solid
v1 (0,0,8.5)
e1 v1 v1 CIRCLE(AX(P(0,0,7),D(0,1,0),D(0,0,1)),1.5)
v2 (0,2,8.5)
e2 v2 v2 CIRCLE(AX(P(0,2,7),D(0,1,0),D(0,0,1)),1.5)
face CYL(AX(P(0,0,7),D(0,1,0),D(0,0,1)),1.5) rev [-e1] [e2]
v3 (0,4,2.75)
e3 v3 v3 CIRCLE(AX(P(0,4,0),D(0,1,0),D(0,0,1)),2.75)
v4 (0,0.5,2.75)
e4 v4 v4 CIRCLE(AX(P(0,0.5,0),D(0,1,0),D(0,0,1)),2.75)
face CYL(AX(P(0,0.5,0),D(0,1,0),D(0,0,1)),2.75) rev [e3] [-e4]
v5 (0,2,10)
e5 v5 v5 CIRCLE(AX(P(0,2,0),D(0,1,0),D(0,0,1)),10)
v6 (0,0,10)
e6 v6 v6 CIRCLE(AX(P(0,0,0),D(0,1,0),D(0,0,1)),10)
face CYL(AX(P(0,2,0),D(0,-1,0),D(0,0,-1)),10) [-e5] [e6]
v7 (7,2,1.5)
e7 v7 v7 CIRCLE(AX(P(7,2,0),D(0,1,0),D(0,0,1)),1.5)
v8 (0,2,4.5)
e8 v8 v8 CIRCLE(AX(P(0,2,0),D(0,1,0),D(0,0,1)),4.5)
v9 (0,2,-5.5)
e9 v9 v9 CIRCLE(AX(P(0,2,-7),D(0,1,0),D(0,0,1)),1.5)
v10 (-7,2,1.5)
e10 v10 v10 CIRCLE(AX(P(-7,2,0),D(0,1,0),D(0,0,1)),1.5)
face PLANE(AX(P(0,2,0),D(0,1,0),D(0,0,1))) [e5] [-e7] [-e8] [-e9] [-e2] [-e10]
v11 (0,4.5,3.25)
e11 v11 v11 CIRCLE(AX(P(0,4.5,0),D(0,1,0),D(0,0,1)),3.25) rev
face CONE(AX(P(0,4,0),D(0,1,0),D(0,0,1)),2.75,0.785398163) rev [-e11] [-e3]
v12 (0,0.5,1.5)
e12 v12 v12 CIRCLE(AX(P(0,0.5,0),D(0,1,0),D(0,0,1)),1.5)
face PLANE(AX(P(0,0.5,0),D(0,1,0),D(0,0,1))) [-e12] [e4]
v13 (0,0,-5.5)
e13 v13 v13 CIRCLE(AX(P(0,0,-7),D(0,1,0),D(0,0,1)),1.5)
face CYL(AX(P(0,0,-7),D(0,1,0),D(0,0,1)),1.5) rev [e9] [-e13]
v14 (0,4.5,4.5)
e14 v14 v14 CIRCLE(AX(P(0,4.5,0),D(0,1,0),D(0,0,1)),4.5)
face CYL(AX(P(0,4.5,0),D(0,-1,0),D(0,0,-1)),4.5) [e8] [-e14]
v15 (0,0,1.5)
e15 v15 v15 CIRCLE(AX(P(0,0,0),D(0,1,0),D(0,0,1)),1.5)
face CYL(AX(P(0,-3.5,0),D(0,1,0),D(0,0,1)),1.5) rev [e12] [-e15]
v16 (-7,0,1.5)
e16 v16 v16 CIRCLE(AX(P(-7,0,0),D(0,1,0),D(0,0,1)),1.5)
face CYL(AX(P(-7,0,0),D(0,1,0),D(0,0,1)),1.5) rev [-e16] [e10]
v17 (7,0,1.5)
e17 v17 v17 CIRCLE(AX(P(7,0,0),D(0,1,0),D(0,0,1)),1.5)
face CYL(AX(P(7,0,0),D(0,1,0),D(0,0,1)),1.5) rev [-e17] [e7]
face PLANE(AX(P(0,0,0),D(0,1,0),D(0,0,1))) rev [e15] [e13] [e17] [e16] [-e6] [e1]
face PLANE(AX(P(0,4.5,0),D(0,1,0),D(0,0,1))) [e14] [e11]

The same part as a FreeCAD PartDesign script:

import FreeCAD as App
import Part
import Sketcher
from FreeCAD import Vector


def edges_at(feature, points):
    """Names of the edges that pass closest to the given points."""
    edges = feature.Shape.Edges
    near = lambda p: min(range(len(edges)), key=lambda i: edges[i].distToShape(Part.Vertex(*p))[0])
    return sorted({f"Edge{near(p) + 1}" for p in points})

doc = App.newDocument("Part")
body = doc.addObject("PartDesign::Body", "Body")

sketch1 = body.newObject("Sketcher::SketchObject", "Sketch")
sketch1.AttachmentSupport = (doc.getObject("XZ_Plane"), [""])
sketch1.MapMode = "FlatFace"
sketch1.addGeometry(Part.Circle(Vector(0, 0, 0), Vector(0, 0, 1), 10), False)
sketch1.addConstraint(Sketcher.Constraint("Coincident", 0, 3, -1, 1))
sketch1.addConstraint(Sketcher.Constraint("Diameter", 0, 20.0))
pad1 = body.newObject("PartDesign::Pad", "Pad")
pad1.Profile = sketch1
pad1.Length = 2
pad1.Reversed = True

sketch2 = body.newObject("Sketcher::SketchObject", "Sketch001")
sketch2.AttachmentSupport = (doc.getObject("XZ_Plane"), [""])
sketch2.MapMode = "FlatFace"
sketch2.AttachmentOffset = App.Placement(Vector(0, 0, -2), App.Rotation())
sketch2.addGeometry(Part.Circle(Vector(-7, 0, 0), Vector(0, 0, 1), 1.5), False)
sketch2.addGeometry(Part.Circle(Vector(0, -7, 0), Vector(0, 0, 1), 1.5), False)
sketch2.addGeometry(Part.Circle(Vector(7, 0, 0), Vector(0, 0, 1), 1.5), False)
sketch2.addGeometry(Part.Circle(Vector(0, 7, 0), Vector(0, 0, 1), 1.5), False)
sketch2.addConstraint(Sketcher.Constraint("Equal", 0, 1))
sketch2.addConstraint(Sketcher.Constraint("Equal", 1, 2))
sketch2.addConstraint(Sketcher.Constraint("Equal", 2, 3))
sketch2.addConstraint(Sketcher.Constraint("Symmetric", 0, 3, 2, 3, -1, 1))
sketch2.addConstraint(Sketcher.Constraint("Symmetric", 1, 3, 3, 3, -1, 1))
sketch2.addConstraint(Sketcher.Constraint("PointOnObject", 0, 3, -1))
sketch2.addConstraint(Sketcher.Constraint("PointOnObject", 1, 3, -2))
sketch2.addConstraint(Sketcher.Constraint("Diameter", 0, 3.0))
sketch2.addConstraint(Sketcher.Constraint("DistanceX", 0, 3, -1, 1, 7.0))
sketch2.addConstraint(Sketcher.Constraint("DistanceY", 1, 3, -1, 1, 7.0))
pocket1 = body.newObject("PartDesign::Pocket", "Pocket")
pocket1.Profile = sketch2
pocket1.Length = 2
pocket1.Reversed = True

sketch3 = body.newObject("Sketcher::SketchObject", "Sketch002")
sketch3.AttachmentSupport = (doc.getObject("XZ_Plane"), [""])
sketch3.MapMode = "FlatFace"
sketch3.AttachmentOffset = App.Placement(Vector(0, 0, -2), App.Rotation())
sketch3.addGeometry(Part.Circle(Vector(0, 0, 0), Vector(0, 0, 1), 4.5), False)
sketch3.addConstraint(Sketcher.Constraint("Coincident", 0, 3, -1, 1))
sketch3.addConstraint(Sketcher.Constraint("Diameter", 0, 9.0))
pad2 = body.newObject("PartDesign::Pad", "Pad001")
pad2.Profile = sketch3
pad2.Length = 2.5
pad2.Reversed = True

sketch4 = body.newObject("Sketcher::SketchObject", "Sketch003")
sketch4.AttachmentSupport = (doc.getObject("XZ_Plane"), [""])
sketch4.MapMode = "FlatFace"
sketch4.AttachmentOffset = App.Placement(Vector(0, 0, -4.5), App.Rotation())
sketch4.addGeometry(Part.Circle(Vector(0, 0, 0), Vector(0, 0, 1), 2.8), False)
sketch4.addConstraint(Sketcher.Constraint("Coincident", 0, 3, -1, 1))
sketch4.addConstraint(Sketcher.Constraint("Diameter", 0, 5.5))
pocket2 = body.newObject("PartDesign::Pocket", "Pocket001")
pocket2.Profile = sketch4
pocket2.Length = 4
pocket2.Reversed = True

sketch5 = body.newObject("Sketcher::SketchObject", "Sketch004")
sketch5.AttachmentSupport = (doc.getObject("XZ_Plane"), [""])
sketch5.MapMode = "FlatFace"
sketch5.AttachmentOffset = App.Placement(Vector(0, 0, -0.5), App.Rotation())
sketch5.addGeometry(Part.Circle(Vector(0, 0, 0), Vector(0, 0, 1), 1.5), False)
sketch5.addConstraint(Sketcher.Constraint("Coincident", 0, 3, -1, 1))
sketch5.addConstraint(Sketcher.Constraint("Diameter", 0, 3.0))
pocket3 = body.newObject("PartDesign::Pocket", "Pocket002")
pocket3.Profile = sketch5
pocket3.Length = 4
pocket3.Reversed = True
doc.recompute()

chamfer = body.newObject("PartDesign::Chamfer", "Chamfer")
chamfer.Base = (pocket3, edges_at(pocket3, [(0, 4.5, -2.75)]))
chamfer.Size = 0.5

doc.recompute()
